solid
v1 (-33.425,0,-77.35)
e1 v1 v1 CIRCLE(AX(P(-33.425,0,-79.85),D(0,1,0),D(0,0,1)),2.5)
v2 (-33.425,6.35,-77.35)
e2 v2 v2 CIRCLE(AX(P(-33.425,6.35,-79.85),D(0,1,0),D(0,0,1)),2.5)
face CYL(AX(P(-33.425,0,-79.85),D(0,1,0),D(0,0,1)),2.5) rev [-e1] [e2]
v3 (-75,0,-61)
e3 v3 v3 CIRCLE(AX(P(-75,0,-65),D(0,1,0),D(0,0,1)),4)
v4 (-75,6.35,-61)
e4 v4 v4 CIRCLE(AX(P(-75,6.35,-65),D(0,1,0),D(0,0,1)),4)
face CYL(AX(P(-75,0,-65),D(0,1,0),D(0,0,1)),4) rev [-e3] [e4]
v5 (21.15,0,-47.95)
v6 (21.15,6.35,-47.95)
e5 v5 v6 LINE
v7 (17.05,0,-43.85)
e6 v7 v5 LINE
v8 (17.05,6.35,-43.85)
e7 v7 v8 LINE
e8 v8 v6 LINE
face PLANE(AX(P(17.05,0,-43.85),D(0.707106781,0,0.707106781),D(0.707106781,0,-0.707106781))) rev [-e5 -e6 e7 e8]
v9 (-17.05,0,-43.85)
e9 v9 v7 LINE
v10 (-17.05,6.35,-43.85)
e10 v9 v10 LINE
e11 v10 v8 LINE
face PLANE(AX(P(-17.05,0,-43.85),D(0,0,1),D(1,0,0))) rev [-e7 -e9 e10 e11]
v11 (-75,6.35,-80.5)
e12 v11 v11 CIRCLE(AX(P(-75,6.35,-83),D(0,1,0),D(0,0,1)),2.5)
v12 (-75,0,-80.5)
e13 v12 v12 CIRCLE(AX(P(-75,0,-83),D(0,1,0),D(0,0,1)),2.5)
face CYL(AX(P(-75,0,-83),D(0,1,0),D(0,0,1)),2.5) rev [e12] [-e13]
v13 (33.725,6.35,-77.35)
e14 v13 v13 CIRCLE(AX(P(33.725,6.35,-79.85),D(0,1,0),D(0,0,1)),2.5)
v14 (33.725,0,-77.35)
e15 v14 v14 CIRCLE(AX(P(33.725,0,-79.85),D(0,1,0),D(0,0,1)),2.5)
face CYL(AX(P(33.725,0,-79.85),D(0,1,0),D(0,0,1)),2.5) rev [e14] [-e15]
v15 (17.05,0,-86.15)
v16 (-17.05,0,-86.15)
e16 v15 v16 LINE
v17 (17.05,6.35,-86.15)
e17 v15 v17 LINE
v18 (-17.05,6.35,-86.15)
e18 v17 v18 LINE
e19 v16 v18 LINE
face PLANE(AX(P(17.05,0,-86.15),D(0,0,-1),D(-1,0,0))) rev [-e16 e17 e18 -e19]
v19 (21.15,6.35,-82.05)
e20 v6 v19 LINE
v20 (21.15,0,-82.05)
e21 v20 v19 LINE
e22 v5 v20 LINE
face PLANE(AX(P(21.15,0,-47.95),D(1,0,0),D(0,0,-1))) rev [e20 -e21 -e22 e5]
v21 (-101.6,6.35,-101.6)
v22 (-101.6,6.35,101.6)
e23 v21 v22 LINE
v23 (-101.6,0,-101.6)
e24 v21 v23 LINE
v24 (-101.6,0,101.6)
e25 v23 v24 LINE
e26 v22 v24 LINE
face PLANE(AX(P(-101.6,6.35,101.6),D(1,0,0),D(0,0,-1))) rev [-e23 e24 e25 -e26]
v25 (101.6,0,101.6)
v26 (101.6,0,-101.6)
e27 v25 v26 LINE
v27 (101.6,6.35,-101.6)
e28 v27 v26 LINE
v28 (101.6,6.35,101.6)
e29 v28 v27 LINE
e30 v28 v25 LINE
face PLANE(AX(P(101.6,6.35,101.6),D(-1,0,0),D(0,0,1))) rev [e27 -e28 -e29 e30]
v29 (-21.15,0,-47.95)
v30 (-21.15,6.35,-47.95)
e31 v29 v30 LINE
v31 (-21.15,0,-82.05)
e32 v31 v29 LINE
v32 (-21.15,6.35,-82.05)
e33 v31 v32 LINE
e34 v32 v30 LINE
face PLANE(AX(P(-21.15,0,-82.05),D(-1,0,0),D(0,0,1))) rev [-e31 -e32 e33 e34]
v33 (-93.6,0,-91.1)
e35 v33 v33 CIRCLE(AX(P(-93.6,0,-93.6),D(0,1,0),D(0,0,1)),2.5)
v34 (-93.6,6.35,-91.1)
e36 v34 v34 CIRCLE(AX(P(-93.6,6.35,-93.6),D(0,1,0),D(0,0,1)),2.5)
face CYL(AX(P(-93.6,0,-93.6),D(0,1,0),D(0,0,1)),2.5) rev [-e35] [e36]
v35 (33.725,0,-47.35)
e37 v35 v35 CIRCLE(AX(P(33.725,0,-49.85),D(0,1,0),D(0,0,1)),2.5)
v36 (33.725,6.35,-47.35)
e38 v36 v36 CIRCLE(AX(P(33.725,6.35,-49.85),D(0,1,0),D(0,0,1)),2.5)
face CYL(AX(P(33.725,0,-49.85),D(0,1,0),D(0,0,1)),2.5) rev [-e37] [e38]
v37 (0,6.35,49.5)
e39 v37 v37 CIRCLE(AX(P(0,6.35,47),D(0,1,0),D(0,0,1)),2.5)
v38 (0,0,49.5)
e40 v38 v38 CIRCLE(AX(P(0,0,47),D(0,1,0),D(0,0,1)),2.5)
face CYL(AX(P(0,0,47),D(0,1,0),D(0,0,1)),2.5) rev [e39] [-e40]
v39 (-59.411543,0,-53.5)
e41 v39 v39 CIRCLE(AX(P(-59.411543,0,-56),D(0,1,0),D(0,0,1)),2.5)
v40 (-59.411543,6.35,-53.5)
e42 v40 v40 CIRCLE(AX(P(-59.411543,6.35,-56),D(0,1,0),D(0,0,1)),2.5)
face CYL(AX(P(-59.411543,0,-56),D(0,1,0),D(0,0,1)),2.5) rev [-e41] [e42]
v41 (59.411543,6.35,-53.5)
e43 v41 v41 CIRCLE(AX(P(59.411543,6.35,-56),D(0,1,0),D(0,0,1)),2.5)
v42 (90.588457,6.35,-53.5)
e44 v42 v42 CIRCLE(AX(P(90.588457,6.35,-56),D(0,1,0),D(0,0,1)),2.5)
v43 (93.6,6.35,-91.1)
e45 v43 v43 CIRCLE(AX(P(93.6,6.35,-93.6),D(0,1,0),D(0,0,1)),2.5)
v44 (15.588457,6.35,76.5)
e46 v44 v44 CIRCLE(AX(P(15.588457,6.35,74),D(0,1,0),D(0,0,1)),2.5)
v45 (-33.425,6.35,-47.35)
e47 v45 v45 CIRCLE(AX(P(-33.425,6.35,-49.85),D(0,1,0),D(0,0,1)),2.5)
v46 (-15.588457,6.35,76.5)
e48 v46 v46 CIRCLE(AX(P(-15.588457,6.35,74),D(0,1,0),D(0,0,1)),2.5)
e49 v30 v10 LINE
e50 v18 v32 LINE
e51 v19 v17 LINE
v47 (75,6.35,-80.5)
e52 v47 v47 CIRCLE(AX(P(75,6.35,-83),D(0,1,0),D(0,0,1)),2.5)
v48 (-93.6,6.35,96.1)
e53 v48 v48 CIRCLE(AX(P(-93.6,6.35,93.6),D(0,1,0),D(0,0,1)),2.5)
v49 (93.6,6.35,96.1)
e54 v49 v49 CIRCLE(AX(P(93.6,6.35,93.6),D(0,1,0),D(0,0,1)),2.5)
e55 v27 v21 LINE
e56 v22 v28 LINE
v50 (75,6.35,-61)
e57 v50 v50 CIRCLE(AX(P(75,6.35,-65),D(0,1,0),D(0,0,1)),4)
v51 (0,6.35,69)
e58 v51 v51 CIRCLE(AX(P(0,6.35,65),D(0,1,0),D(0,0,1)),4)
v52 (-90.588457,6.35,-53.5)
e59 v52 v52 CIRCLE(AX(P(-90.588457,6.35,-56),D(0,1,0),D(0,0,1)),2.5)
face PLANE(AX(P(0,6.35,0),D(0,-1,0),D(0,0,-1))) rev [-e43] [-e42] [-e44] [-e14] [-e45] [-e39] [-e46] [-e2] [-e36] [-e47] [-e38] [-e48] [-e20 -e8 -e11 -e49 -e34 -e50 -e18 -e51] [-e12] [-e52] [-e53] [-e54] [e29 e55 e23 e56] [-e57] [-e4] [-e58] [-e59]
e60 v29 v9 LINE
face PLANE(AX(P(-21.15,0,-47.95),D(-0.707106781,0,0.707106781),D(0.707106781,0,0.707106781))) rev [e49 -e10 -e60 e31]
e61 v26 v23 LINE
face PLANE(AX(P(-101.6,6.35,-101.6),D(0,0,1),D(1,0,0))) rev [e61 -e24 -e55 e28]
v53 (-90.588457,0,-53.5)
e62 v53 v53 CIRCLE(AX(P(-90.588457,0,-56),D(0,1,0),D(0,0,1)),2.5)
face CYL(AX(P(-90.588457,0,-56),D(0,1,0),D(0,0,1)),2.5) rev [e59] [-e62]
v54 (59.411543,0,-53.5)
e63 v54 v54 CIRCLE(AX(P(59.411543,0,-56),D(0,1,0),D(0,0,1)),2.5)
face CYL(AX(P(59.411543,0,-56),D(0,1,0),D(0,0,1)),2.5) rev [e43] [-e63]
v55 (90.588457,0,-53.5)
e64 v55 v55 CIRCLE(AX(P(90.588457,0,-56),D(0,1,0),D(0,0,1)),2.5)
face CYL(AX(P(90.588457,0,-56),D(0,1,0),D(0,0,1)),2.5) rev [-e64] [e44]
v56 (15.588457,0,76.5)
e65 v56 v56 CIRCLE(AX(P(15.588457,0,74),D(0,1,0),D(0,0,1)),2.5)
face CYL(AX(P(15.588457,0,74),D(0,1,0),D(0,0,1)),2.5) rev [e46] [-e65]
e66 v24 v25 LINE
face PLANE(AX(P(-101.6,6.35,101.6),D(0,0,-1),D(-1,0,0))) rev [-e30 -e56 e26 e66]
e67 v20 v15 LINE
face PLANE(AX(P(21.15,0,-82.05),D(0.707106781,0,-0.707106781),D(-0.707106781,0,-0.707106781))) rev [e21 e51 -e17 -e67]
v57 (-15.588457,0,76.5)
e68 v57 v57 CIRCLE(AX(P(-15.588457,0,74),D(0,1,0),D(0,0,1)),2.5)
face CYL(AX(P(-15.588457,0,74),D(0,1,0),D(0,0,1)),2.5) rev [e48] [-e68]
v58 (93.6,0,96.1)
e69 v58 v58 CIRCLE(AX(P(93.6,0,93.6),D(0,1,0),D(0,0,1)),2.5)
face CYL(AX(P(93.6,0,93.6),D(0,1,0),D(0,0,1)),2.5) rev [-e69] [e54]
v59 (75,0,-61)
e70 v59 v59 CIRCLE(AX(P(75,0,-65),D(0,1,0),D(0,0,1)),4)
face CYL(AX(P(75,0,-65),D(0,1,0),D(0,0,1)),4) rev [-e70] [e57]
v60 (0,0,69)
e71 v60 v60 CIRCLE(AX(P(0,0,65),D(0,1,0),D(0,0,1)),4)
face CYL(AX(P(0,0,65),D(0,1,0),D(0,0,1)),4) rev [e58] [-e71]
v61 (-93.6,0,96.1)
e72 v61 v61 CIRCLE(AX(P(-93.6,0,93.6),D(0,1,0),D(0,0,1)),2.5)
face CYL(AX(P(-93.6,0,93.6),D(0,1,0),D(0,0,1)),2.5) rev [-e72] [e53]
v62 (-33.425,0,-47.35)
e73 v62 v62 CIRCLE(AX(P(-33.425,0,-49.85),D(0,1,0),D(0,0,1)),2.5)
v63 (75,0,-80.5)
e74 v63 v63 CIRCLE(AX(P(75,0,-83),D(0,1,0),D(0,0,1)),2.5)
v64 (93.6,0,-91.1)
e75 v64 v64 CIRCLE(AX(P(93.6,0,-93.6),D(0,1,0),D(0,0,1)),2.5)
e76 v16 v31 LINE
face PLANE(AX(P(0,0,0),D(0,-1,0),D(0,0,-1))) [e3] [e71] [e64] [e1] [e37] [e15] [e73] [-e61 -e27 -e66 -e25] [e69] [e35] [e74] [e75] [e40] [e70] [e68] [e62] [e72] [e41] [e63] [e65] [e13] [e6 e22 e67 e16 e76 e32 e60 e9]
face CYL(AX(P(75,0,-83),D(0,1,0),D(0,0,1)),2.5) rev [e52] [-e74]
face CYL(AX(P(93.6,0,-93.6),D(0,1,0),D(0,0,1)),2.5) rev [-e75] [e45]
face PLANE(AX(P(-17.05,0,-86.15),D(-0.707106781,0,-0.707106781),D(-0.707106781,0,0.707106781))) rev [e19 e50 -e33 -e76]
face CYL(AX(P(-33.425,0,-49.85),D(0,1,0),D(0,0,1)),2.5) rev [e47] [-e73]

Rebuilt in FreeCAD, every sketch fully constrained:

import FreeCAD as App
import Part
import Sketcher
Q = App.Units.Quantity

doc = App.newDocument("Part")
body = doc.addObject("PartDesign::Body", "Body")

# Sketch on XZ plane
sketch1 = body.newObject("Sketcher::SketchObject", "Sketch")
sketch1.AttachmentSupport = (doc.getObject("XZ_Plane"), [""])
sketch1.MapMode = "FlatFace"
sketch1.addGeometry(Part.LineSegment(App.Vector(-102, -102, 0), App.Vector(-102, 102, 0)), False)
sketch1.addGeometry(Part.LineSegment(App.Vector(-102, 102, 0), App.Vector(102, 102, 0)), False)
sketch1.addGeometry(Part.LineSegment(App.Vector(102, 102, 0), App.Vector(102, -102, 0)), False)
sketch1.addGeometry(Part.LineSegment(App.Vector(102, -102, 0), App.Vector(-102, -102, 0)), False)
sketch1.addConstraint(Sketcher.Constraint("Coincident", 0, 2, 1, 1))
sketch1.addConstraint(Sketcher.Constraint("Coincident", 1, 2, 2, 1))
sketch1.addConstraint(Sketcher.Constraint("Coincident", 2, 2, 3, 1))
sketch1.addConstraint(Sketcher.Constraint("Coincident", 3, 2, 0, 1))
sketch1.addConstraint(Sketcher.Constraint("Vertical", 0))
sketch1.addConstraint(Sketcher.Constraint("Horizontal", 1))
sketch1.addConstraint(Sketcher.Constraint("Vertical", 2))
sketch1.addConstraint(Sketcher.Constraint("Horizontal", 3))
sketch1.addConstraint(Sketcher.Constraint("Symmetric", 0, 2, 2, 2, -1, 1))
sketch1.addConstraint(Sketcher.Constraint("Equal", 3, 0))
sketch1.addConstraint(Sketcher.Constraint("DistanceX", 1, 1, 1, 2, Q("203.2 mm")))
pad1 = body.newObject("PartDesign::Pad", "Pad")
pad1.Profile = sketch1
pad1.Length = 6.35
pad1.Reversed = True

# Sketch on XZ plane
sketch2 = body.newObject("Sketcher::SketchObject", "Sketch001")
sketch2.AttachmentSupport = (doc.getObject("XZ_Plane"), [""])
sketch2.MapMode = "FlatFace"
sketch2.AttachmentOffset = App.Placement(App.Vector(0, 0, -6.35), App.Rotation())
sketch2.addGeometry(Part.Circle(App.Vector(-75, -65, 0), App.Vector(0, 0, 1), 4), False)
sketch2.addGeometry(Part.Circle(App.Vector(75, -65, 0), App.Vector(0, 0, 1), 4), False)
sketch2.addGeometry(Part.Circle(App.Vector(0, 65, 0), App.Vector(0, 0, 1), 4), False)
sketch2.addConstraint(Sketcher.Constraint("Equal", 0, 1))
sketch2.addConstraint(Sketcher.Constraint("Equal", 1, 2))
sketch2.addConstraint(Sketcher.Constraint("Symmetric", 0, 3, 1, 3, -2))
sketch2.addConstraint(Sketcher.Constraint("PointOnObject", 2, 3, -2))
sketch2.addConstraint(Sketcher.Constraint("Diameter", 0, Q("8 mm")))
sketch2.addConstraint(Sketcher.Constraint("DistanceX", 0, 3, -1, 1, Q("75 mm")))
sketch2.addConstraint(Sketcher.Constraint("DistanceY", 0, 3, -1, 1, Q("65 mm")))
sketch2.addConstraint(Sketcher.Constraint("DistanceY", -1, 1, 2, 3, Q("65 mm")))
pocket1 = body.newObject("PartDesign::Pocket", "Pocket")
pocket1.Profile = sketch2
pocket1.Type = "ThroughAll"
pocket1.Reversed = True

# Sketch on XZ plane
sketch3 = body.newObject("Sketcher::SketchObject", "Sketch002")
sketch3.AttachmentSupport = (doc.getObject("XZ_Plane"), [""])
sketch3.MapMode = "FlatFace"
sketch3.AttachmentOffset = App.Placement(App.Vector(0, 0, -6.35), App.Rotation())
sketch3.addGeometry(Part.LineSegment(App.Vector(-17, -86, 0), App.Vector(-21, -82, 0)), False)
sketch3.addGeometry(Part.LineSegment(App.Vector(-21, -82, 0), App.Vector(-21, -48, 0)), False)
sketch3.addGeometry(Part.LineSegment(App.Vector(-21, -48, 0), App.Vector(-17, -44, 0)), False)
sketch3.addGeometry(Part.LineSegment(App.Vector(-17, -44, 0), App.Vector(17, -44, 0)), False)
sketch3.addGeometry(Part.LineSegment(App.Vector(17, -44, 0), App.Vector(21, -48, 0)), False)
sketch3.addGeometry(Part.LineSegment(App.Vector(21, -48, 0), App.Vector(21, -82, 0)), False)
sketch3.addGeometry(Part.LineSegment(App.Vector(21, -82, 0), App.Vector(17, -86, 0)), False)
sketch3.addGeometry(Part.LineSegment(App.Vector(17, -86, 0), App.Vector(-17, -86, 0)), False)
sketch3.addConstraint(Sketcher.Constraint("Coincident", 0, 2, 1, 1))
sketch3.addConstraint(Sketcher.Constraint("Coincident", 1, 2, 2, 1))
sketch3.addConstraint(Sketcher.Constraint("Coincident", 2, 2, 3, 1))
sketch3.addConstraint(Sketcher.Constraint("Coincident", 3, 2, 4, 1))
sketch3.addConstraint(Sketcher.Constraint("Coincident", 4, 2, 5, 1))
sketch3.addConstraint(Sketcher.Constraint("Coincident", 5, 2, 6, 1))
sketch3.addConstraint(Sketcher.Constraint("Coincident", 6, 2, 7, 1))
sketch3.addConstraint(Sketcher.Constraint("Coincident", 7, 2, 0, 1))
sketch3.addConstraint(Sketcher.Constraint("Vertical", 1))
sketch3.addConstraint(Sketcher.Constraint("Horizontal", 3))
sketch3.addConstraint(Sketcher.Constraint("Vertical", 5))
sketch3.addConstraint(Sketcher.Constraint("Horizontal", 7))
sketch3.addConstraint(Sketcher.Constraint("Symmetric", 1, 2, 4, 2, -2))
sketch3.addConstraint(Sketcher.Constraint("Perpendicular", 0, 2))
sketch3.addConstraint(Sketcher.Constraint("Perpendicular", 2, 4))
sketch3.addConstraint(Sketcher.Constraint("Perpendicular", 4, 6))
sketch3.addConstraint(Sketcher.Constraint("Horizontal", 0, 2, 5, 2))
sketch3.addConstraint(Sketcher.Constraint("Vertical", 3, 2, 6, 2))
sketch3.addConstraint(Sketcher.Constraint("Vertical", 2, 2, 7, 2))
sketch3.addConstraint(Sketcher.Constraint("Equal", 7, 1))
sketch3.addConstraint(Sketcher.Constraint("DistanceX", 3, 1, 3, 2, Q("34.1 mm")))
sketch3.addConstraint(Sketcher.Constraint("DistanceX", 1, 2, 2, 2, Q("4.1 mm")))
sketch3.addConstraint(Sketcher.Constraint("DistanceY", 0, 2, -1, 1, Q("82.05 mm")))
pocket2 = body.newObject("PartDesign::Pocket", "Pocket001")
pocket2.Profile = sketch3
pocket2.Type = "ThroughAll"
pocket2.Reversed = True

# Sketch on XZ plane
sketch4 = body.newObject("Sketcher::SketchObject", "Sketch003")
sketch4.AttachmentSupport = (doc.getObject("XZ_Plane"), [""])
sketch4.MapMode = "FlatFace"
sketch4.AttachmentOffset = App.Placement(App.Vector(0, 0, -6.35), App.Rotation())
sketch4.addGeometry(Part.Circle(App.Vector(-33.4, -49.9, 0), App.Vector(0, 0, 1), 2.5), False)
sketch4.addGeometry(Part.Circle(App.Vector(-33.4, -79.8, 0), App.Vector(0, 0, 1), 2.5), False)
sketch4.addGeometry(Part.Circle(App.Vector(33.7, -49.9, 0), App.Vector(0, 0, 1), 2.5), False)
sketch4.addGeometry(Part.Circle(App.Vector(33.7, -79.8, 0), App.Vector(0, 0, 1), 2.5), False)
sketch4.addConstraint(Sketcher.Constraint("Equal", 0, 1))
sketch4.addConstraint(Sketcher.Constraint("Equal", 1, 2))
sketch4.addConstraint(Sketcher.Constraint("Equal", 2, 3))
sketch4.addConstraint(Sketcher.Constraint("Horizontal", 0, 3, 2, 3))
sketch4.addConstraint(Sketcher.Constraint("Horizontal", 1, 3, 3, 3))
sketch4.addConstraint(Sketcher.Constraint("Vertical", 0, 3, 1, 3))
sketch4.addConstraint(Sketcher.Constraint("Vertical", 2, 3, 3, 3))
sketch4.addConstraint(Sketcher.Constraint("Diameter", 0, Q("5 mm")))
sketch4.addConstraint(Sketcher.Constraint("DistanceY", 1, 3, 0, 3, Q("30 mm")))
sketch4.addConstraint(Sketcher.Constraint("DistanceY", 0, 3, -1, 1, Q("49.85 mm")))
sketch4.addConstraint(Sketcher.Constraint("DistanceX", 0, 3, 2, 3, Q("67.15 mm")))
sketch4.addConstraint(Sketcher.Constraint("DistanceX", 0, 3, -1, 1, Q("33.425 mm")))
pocket3 = body.newObject("PartDesign::Pocket", "Pocket002")
pocket3.Profile = sketch4
pocket3.Type = "ThroughAll"
pocket3.Reversed = True

# Sketch on XZ plane
sketch5 = body.newObject("Sketcher::SketchObject", "Sketch004")
sketch5.AttachmentSupport = (doc.getObject("XZ_Plane"), [""])
sketch5.MapMode = "FlatFace"
sketch5.AttachmentOffset = App.Placement(App.Vector(0, 0, -6.35), App.Rotation())
sketch5.addGeometry(Part.Circle(App.Vector(93.6, 93.6, 0), App.Vector(0, 0, 1), 2.5), False)
sketch5.addGeometry(Part.Circle(App.Vector(-93.6, 93.6, 0), App.Vector(0, 0, 1), 2.5), False)
sketch5.addGeometry(Part.Circle(App.Vector(-93.6, -93.6, 0), App.Vector(0, 0, 1), 2.5), False)
sketch5.addGeometry(Part.Circle(App.Vector(93.6, -93.6, 0), App.Vector(0, 0, 1), 2.5), False)
sketch5.addConstraint(Sketcher.Constraint("Equal", 0, 1))
sketch5.addConstraint(Sketcher.Constraint("Equal", 1, 2))
sketch5.addConstraint(Sketcher.Constraint("Equal", 2, 3))
sketch5.addConstraint(Sketcher.Constraint("Symmetric", 0, 3, 2, 3, -1, 1))
sketch5.addConstraint(Sketcher.Constraint("Symmetric", 1, 3, 3, 3, -1, 1))
sketch5.addConstraint(Sketcher.Constraint("Symmetric", 0, 3, 1, 3, -2))
sketch5.addConstraint(Sketcher.Constraint("Diameter", 0, Q("5 mm")))
sketch5.addConstraint(Sketcher.Constraint("DistanceX", -1, 1, 0, 3, Q("93.6 mm")))
sketch5.addConstraint(Sketcher.Constraint("DistanceY", -1, 1, 0, 3, Q("93.6 mm")))
pocket4 = body.newObject("PartDesign::Pocket", "Pocket003")
pocket4.Profile = sketch5
pocket4.Type = "ThroughAll"
pocket4.Reversed = True

# Sketch on XZ plane
sketch6 = body.newObject("Sketcher::SketchObject", "Sketch005")
sketch6.AttachmentSupport = (doc.getObject("XZ_Plane"), [""])
sketch6.MapMode = "FlatFace"
sketch6.AttachmentOffset = App.Placement(App.Vector(0, 0, -6.35), App.Rotation())
sketch6.addGeometry(Part.Circle(App.Vector(-15.6, 74, 0), App.Vector(0, 0, 1), 2.5), False)
sketch6.addGeometry(Part.Circle(App.Vector(15.6, 74, 0), App.Vector(0, 0, 1), 2.5), False)
sketch6.addGeometry(Part.Circle(App.Vector(0, 47, 0), App.Vector(0, 0, 1), 2.5), False)
sketch6.addGeometry(Part.Circle(App.Vector(90.6, -56, 0), App.Vector(0, 0, 1), 2.5), False)
sketch6.addGeometry(Part.Circle(App.Vector(59.4, -56, 0), App.Vector(0, 0, 1), 2.5), False)
sketch6.addGeometry(Part.Circle(App.Vector(75, -83, 0), App.Vector(0, 0, 1), 2.5), False)
sketch6.addGeometry(Part.Circle(App.Vector(-90.6, -56, 0), App.Vector(0, 0, 1), 2.5), False)
sketch6.addGeometry(Part.Circle(App.Vector(-59.4, -56, 0), App.Vector(0, 0, 1), 2.5), False)
sketch6.addGeometry(Part.Circle(App.Vector(-75, -83, 0), App.Vector(0, 0, 1), 2.5), False)
sketch6.addConstraint(Sketcher.Constraint("Equal", 0, 1))
sketch6.addConstraint(Sketcher.Constraint("Equal", 1, 2))
sketch6.addConstraint(Sketcher.Constraint("Equal", 2, 3))
sketch6.addConstraint(Sketcher.Constraint("Equal", 3, 4))
sketch6.addConstraint(Sketcher.Constraint("Equal", 4, 5))
sketch6.addConstraint(Sketcher.Constraint("Equal", 5, 6))
sketch6.addConstraint(Sketcher.Constraint("Equal", 6, 7))
sketch6.addConstraint(Sketcher.Constraint("Equal", 7, 8))
sketch6.addConstraint(Sketcher.Constraint("Symmetric", 0, 3, 1, 3, -2))
sketch6.addConstraint(Sketcher.Constraint("Symmetric", 3, 3, 6, 3, -2))
sketch6.addConstraint(Sketcher.Constraint("Symmetric", 4, 3, 7, 3, -2))
sketch6.addConstraint(Sketcher.Constraint("Symmetric", 5, 3, 8, 3, -2))
sketch6.addConstraint(Sketcher.Constraint("PointOnObject", 2, 3, -2))
sketch6.addConstraint(Sketcher.Constraint("Horizontal", 3, 3, 4, 3))
sketch6.addConstraint(Sketcher.Constraint("Diameter", 0, Q("5 mm")))
sketch6.addConstraint(Sketcher.Constraint("DistanceY", -1, 1, 0, 3, Q("74 mm")))
sketch6.addConstraint(Sketcher.Constraint("DistanceY", -1, 1, 2, 3, Q("47 mm")))
sketch6.addConstraint(Sketcher.Constraint("DistanceY", 3, 3, -1, 1, Q("56 mm")))
sketch6.addConstraint(Sketcher.Constraint("DistanceX", -1, 1, 5, 3, Q("75 mm")))
sketch6.addConstraint(Sketcher.Constraint("DistanceY", 5, 3, -1, 1, Q("83 mm")))
sketch6.addConstraint(Sketcher.Constraint("DistanceX", 1, 3, 3, 3, Q("75 mm")))
sketch6.addConstraint(Sketcher.Constraint("DistanceX", 0, 3, 4, 3, Q("75 mm")))
sketch6.addConstraint(Sketcher.Constraint("DistanceX", 0, 3, -1, 1, Q("15.588457 mm")))
pocket5 = body.newObject("PartDesign::Pocket", "Pocket004")
pocket5.Profile = sketch6
pocket5.Type = "ThroughAll"
pocket5.Reversed = True

doc.recompute()
